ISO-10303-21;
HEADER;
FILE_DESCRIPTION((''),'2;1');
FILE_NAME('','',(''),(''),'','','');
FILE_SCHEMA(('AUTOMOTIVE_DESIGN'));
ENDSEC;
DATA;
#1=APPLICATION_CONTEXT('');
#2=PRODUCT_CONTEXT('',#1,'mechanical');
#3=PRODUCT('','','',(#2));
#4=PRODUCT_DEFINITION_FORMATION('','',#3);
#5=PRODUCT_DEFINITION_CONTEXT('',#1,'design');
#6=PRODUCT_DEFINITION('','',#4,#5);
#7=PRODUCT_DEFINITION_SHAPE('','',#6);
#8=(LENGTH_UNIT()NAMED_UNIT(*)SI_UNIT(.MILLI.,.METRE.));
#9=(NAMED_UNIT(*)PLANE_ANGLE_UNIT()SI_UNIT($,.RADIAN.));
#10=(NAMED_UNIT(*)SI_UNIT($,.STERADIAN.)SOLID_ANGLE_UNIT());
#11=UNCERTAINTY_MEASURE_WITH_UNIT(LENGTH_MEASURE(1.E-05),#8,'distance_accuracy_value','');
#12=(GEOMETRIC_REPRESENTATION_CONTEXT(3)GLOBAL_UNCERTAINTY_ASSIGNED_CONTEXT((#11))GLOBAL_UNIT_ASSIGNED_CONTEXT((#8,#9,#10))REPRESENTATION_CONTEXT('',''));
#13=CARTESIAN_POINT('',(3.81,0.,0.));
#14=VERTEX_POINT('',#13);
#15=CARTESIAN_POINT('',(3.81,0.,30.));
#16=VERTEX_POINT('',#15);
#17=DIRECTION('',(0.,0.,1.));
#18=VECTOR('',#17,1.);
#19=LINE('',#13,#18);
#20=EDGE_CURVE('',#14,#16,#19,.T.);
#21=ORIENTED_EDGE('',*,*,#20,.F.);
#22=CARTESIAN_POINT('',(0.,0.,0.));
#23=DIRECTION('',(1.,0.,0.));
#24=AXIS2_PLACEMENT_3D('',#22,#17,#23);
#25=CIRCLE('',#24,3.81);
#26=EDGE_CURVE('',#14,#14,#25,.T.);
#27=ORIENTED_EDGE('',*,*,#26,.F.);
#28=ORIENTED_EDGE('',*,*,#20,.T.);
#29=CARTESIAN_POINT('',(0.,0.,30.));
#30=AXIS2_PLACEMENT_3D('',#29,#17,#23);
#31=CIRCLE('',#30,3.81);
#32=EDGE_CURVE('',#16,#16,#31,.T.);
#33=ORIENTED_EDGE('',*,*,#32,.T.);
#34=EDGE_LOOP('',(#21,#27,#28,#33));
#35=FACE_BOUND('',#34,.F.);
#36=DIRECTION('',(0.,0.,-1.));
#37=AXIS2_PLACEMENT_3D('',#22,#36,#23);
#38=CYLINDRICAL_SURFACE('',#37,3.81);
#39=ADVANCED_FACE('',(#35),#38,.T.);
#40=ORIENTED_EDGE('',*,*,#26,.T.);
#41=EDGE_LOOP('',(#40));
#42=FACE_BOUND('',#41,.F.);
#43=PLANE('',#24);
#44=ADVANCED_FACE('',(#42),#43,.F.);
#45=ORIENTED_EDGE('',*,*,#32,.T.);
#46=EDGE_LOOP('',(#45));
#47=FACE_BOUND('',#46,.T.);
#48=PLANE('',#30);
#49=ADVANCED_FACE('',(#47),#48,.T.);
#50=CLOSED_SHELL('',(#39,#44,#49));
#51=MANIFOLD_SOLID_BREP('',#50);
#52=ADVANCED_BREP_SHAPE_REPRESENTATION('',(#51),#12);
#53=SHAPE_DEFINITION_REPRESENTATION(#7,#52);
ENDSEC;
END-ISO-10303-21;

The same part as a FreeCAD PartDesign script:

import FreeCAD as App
import Part
import Sketcher
from FreeCAD import Vector
Q = App.Units.Quantity

doc = App.newDocument("Part")
body = doc.addObject("PartDesign::Body", "Body")

sketch1 = doc.addObject("Sketcher::SketchObject", "Sketch")
body.addObject(sketch1)
sketch1.AttachmentSupport = (doc.XY_Plane, [""])
sketch1.MapMode = "FlatFace"
sketch1.addGeometry(Part.Circle(Vector(0, 0, 0), Vector(0, 0, 1), 3.8), False)
sketch1.addConstraint([
    Sketcher.Constraint("Coincident", 0, 3, -1, 1),
    Sketcher.Constraint("Diameter", 0, Q("0.3 in")),
])
pad1 = doc.addObject("PartDesign::Pad", "Pad")
body.addObject(pad1)
pad1.Profile = sketch1
pad1.Length = Q("1.1811024 in")

doc.recompute()
